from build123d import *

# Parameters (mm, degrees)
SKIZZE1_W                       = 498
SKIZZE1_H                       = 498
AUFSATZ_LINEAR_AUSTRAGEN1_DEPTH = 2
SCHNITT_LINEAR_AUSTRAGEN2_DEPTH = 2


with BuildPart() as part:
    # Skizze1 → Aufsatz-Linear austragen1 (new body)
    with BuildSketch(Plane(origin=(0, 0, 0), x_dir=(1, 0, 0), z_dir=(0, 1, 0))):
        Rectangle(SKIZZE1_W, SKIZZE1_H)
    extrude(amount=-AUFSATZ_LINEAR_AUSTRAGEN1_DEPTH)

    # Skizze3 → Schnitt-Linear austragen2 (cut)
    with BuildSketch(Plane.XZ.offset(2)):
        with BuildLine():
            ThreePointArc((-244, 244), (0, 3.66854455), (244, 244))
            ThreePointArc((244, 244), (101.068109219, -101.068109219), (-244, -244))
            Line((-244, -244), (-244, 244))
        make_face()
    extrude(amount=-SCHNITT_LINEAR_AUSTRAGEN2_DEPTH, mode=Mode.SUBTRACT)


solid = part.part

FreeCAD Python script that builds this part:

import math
import FreeCAD as App
import Part
import Sketcher
Q = App.Units.Quantity


def add_polygon(sketch, points):
    """Adds a closed chain of lines whose ends are joined by coincident constraints."""
    first, n = sketch.GeometryCount, len(points)
    for a, b in zip(points, points[1:] + points[:1]):
        sketch.addGeometry(Part.LineSegment(App.Vector(*a, 0), App.Vector(*b, 0)), False)
    for i in range(n):
        sketch.addConstraint(Sketcher.Constraint("Coincident", first + i, 2, first + (i + 1) % n, 1))

doc = App.newDocument("Part")
body = doc.addObject("PartDesign::Body", "Body")

# Sketch on XZ plane
sketch1 = body.newObject("Sketcher::SketchObject", "Sketch")
sketch1.AttachmentSupport = (doc.getObject("XZ_Plane"), [""])
sketch1.MapMode = "FlatFace"
add_polygon(sketch1, [(-249, -249), (-249, 249), (249, 249), (249, -249)])  # lines 0-3
sketch1.addConstraint(Sketcher.Constraint("Vertical", 0))
sketch1.addConstraint(Sketcher.Constraint("Horizontal", 1))
sketch1.addConstraint(Sketcher.Constraint("Vertical", 2))
sketch1.addConstraint(Sketcher.Constraint("Horizontal", 3))
sketch1.addConstraint(Sketcher.Constraint("Symmetric", 0, 2, 2, 2, -1, 1))
sketch1.addConstraint(Sketcher.Constraint("Equal", 3, 0))
sketch1.addConstraint(Sketcher.Constraint("DistanceX", 1, 1, 1, 2, Q("498 mm")))
pad1 = body.newObject("PartDesign::Pad", "Pad")
pad1.Profile = sketch1
pad1.Length = 2

# Sketch on XZ plane
sketch2 = body.newObject("Sketcher::SketchObject", "Sketch001")
sketch2.AttachmentSupport = (doc.getObject("XZ_Plane"), [""])
sketch2.MapMode = "FlatFace"
sketch2.AttachmentOffset = App.Placement(App.Vector(0, 0, 2), App.Rotation())
sketch2.addGeometry(Part.ArcOfCircle(Part.Circle(App.Vector(0, 248, 0), App.Vector(0, 0, 1), 244), math.radians(-179), math.radians(-1)), False)
sketch2.addGeometry(Part.LineSegment(App.Vector(-244, 244, 0), App.Vector(-244, -244, 0)), False)
sketch2.addGeometry(Part.ArcOfCircle(Part.Circle(App.Vector(-244, 244, 0), App.Vector(0, 0, 1), 488), math.radians(-90), math.radians(0)), False)
sketch2.addConstraint(Sketcher.Constraint("Coincident", 0, 1, 1, 1))
sketch2.addConstraint(Sketcher.Constraint("Coincident", 1, 2, 2, 1))
sketch2.addConstraint(Sketcher.Constraint("Coincident", 2, 2, 0, 2))
sketch2.addConstraint(Sketcher.Constraint("Vertical", 1))
sketch2.addConstraint(Sketcher.Constraint("Coincident", 0, 1, 2, 3))
sketch2.addConstraint(Sketcher.Constraint("Symmetric", 1, 2, 2, 2, -1, 1))
sketch2.addConstraint(Sketcher.Constraint("PointOnObject", 0, 3, -2))
sketch2.addConstraint(Sketcher.Constraint("Radius", 2, Q("488 mm")))
sketch2.addConstraint(Sketcher.Constraint("Radius", 0, Q("244.027999 mm")))
pocket1 = body.newObject("PartDesign::Pocket", "Pocket")
pocket1.Profile = sketch2
pocket1.Length = 2

doc.recompute()
